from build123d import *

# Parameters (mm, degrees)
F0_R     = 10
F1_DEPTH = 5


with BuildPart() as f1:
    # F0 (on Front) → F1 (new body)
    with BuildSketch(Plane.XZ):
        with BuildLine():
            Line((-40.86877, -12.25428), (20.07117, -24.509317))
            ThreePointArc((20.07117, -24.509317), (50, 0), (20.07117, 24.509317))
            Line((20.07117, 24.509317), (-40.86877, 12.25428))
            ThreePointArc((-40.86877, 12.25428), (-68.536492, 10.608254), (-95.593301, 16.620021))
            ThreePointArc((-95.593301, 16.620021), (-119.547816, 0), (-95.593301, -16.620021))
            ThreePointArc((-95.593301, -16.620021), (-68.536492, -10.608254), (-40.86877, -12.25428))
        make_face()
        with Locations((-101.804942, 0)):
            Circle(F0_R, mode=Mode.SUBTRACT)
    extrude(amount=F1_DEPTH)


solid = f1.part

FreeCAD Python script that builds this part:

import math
import FreeCAD as App
import Part
import Sketcher

V = App.Vector

doc = App.newDocument("Part")
body = doc.addObject("PartDesign::Body", "Body")

sketch1 = doc.addObject("Sketcher::SketchObject", "Sketch")
body.addObject(sketch1)
sketch1.AttachmentSupport = (doc.XZ_Plane, [""])
sketch1.MapMode = "FlatFace"
sketch1.addGeometry([
    Part.LineSegment(V(-41, -12, 0), V(20, -25, 0)),
    Part.ArcOfCircle(Part.Circle(V(25, 0, 0), V(0, 0, 1), 25), math.radians(-101), math.radians(101)),
    Part.LineSegment(V(20, 25, 0), V(-41, 12, 0)),
    Part.ArcOfCircle(Part.Circle(V(-61, 110, 0), V(0, 0, 1), 100), math.radians(-110), math.radians(-79)),
    Part.ArcOfCircle(Part.Circle(V(-102, 0, 0), V(0, 0, 1), 18), math.radians(70), math.radians(290)),
    Part.ArcOfCircle(Part.Circle(V(-61, -110, 0), V(0, 0, 1), 100), math.radians(79), math.radians(110)),
    Part.Circle(V(-102, 0, 0), V(0, 0, 1), 10),
], False)
sketch1.addConstraint([
    Sketcher.Constraint("Tangent", 0, 2, 1, 1),
    Sketcher.Constraint("Tangent", 1, 2, 2, 1),
    Sketcher.Constraint("Tangent", 2, 2, 3, 2),
    Sketcher.Constraint("Tangent", 3, 1, 4, 1),
    Sketcher.Constraint("Tangent", 4, 2, 5, 2),
    Sketcher.Constraint("Tangent", 5, 1, 0, 1),
    Sketcher.Constraint("Coincident", 6, 3, 4, 3),
    Sketcher.Constraint("Equal", 3, 5),
    Sketcher.Constraint("Symmetric", 3, 3, 5, 3, -1),
    Sketcher.Constraint("PointOnObject", 1, 3, -1),
    Sketcher.Constraint("Diameter", 6, 20.0),
    Sketcher.Constraint("Radius", 1, 25.0),
    Sketcher.Constraint("DistanceX", -1, 1, 1, 3, 25.0),
    Sketcher.Constraint("Radius", 3, 99.999998),
    Sketcher.Constraint("Radius", 4, 17.742874),
    Sketcher.Constraint("DistanceX", 3, 1, -1, 1, 95.593301),
    Sketcher.Constraint("DistanceY", 4, 2, 2, 2, 28.874301),
])
pad1 = doc.addObject("PartDesign::Pad", "Pad")
body.addObject(pad1)
pad1.Profile = sketch1
pad1.Length = 5

doc.recompute()
